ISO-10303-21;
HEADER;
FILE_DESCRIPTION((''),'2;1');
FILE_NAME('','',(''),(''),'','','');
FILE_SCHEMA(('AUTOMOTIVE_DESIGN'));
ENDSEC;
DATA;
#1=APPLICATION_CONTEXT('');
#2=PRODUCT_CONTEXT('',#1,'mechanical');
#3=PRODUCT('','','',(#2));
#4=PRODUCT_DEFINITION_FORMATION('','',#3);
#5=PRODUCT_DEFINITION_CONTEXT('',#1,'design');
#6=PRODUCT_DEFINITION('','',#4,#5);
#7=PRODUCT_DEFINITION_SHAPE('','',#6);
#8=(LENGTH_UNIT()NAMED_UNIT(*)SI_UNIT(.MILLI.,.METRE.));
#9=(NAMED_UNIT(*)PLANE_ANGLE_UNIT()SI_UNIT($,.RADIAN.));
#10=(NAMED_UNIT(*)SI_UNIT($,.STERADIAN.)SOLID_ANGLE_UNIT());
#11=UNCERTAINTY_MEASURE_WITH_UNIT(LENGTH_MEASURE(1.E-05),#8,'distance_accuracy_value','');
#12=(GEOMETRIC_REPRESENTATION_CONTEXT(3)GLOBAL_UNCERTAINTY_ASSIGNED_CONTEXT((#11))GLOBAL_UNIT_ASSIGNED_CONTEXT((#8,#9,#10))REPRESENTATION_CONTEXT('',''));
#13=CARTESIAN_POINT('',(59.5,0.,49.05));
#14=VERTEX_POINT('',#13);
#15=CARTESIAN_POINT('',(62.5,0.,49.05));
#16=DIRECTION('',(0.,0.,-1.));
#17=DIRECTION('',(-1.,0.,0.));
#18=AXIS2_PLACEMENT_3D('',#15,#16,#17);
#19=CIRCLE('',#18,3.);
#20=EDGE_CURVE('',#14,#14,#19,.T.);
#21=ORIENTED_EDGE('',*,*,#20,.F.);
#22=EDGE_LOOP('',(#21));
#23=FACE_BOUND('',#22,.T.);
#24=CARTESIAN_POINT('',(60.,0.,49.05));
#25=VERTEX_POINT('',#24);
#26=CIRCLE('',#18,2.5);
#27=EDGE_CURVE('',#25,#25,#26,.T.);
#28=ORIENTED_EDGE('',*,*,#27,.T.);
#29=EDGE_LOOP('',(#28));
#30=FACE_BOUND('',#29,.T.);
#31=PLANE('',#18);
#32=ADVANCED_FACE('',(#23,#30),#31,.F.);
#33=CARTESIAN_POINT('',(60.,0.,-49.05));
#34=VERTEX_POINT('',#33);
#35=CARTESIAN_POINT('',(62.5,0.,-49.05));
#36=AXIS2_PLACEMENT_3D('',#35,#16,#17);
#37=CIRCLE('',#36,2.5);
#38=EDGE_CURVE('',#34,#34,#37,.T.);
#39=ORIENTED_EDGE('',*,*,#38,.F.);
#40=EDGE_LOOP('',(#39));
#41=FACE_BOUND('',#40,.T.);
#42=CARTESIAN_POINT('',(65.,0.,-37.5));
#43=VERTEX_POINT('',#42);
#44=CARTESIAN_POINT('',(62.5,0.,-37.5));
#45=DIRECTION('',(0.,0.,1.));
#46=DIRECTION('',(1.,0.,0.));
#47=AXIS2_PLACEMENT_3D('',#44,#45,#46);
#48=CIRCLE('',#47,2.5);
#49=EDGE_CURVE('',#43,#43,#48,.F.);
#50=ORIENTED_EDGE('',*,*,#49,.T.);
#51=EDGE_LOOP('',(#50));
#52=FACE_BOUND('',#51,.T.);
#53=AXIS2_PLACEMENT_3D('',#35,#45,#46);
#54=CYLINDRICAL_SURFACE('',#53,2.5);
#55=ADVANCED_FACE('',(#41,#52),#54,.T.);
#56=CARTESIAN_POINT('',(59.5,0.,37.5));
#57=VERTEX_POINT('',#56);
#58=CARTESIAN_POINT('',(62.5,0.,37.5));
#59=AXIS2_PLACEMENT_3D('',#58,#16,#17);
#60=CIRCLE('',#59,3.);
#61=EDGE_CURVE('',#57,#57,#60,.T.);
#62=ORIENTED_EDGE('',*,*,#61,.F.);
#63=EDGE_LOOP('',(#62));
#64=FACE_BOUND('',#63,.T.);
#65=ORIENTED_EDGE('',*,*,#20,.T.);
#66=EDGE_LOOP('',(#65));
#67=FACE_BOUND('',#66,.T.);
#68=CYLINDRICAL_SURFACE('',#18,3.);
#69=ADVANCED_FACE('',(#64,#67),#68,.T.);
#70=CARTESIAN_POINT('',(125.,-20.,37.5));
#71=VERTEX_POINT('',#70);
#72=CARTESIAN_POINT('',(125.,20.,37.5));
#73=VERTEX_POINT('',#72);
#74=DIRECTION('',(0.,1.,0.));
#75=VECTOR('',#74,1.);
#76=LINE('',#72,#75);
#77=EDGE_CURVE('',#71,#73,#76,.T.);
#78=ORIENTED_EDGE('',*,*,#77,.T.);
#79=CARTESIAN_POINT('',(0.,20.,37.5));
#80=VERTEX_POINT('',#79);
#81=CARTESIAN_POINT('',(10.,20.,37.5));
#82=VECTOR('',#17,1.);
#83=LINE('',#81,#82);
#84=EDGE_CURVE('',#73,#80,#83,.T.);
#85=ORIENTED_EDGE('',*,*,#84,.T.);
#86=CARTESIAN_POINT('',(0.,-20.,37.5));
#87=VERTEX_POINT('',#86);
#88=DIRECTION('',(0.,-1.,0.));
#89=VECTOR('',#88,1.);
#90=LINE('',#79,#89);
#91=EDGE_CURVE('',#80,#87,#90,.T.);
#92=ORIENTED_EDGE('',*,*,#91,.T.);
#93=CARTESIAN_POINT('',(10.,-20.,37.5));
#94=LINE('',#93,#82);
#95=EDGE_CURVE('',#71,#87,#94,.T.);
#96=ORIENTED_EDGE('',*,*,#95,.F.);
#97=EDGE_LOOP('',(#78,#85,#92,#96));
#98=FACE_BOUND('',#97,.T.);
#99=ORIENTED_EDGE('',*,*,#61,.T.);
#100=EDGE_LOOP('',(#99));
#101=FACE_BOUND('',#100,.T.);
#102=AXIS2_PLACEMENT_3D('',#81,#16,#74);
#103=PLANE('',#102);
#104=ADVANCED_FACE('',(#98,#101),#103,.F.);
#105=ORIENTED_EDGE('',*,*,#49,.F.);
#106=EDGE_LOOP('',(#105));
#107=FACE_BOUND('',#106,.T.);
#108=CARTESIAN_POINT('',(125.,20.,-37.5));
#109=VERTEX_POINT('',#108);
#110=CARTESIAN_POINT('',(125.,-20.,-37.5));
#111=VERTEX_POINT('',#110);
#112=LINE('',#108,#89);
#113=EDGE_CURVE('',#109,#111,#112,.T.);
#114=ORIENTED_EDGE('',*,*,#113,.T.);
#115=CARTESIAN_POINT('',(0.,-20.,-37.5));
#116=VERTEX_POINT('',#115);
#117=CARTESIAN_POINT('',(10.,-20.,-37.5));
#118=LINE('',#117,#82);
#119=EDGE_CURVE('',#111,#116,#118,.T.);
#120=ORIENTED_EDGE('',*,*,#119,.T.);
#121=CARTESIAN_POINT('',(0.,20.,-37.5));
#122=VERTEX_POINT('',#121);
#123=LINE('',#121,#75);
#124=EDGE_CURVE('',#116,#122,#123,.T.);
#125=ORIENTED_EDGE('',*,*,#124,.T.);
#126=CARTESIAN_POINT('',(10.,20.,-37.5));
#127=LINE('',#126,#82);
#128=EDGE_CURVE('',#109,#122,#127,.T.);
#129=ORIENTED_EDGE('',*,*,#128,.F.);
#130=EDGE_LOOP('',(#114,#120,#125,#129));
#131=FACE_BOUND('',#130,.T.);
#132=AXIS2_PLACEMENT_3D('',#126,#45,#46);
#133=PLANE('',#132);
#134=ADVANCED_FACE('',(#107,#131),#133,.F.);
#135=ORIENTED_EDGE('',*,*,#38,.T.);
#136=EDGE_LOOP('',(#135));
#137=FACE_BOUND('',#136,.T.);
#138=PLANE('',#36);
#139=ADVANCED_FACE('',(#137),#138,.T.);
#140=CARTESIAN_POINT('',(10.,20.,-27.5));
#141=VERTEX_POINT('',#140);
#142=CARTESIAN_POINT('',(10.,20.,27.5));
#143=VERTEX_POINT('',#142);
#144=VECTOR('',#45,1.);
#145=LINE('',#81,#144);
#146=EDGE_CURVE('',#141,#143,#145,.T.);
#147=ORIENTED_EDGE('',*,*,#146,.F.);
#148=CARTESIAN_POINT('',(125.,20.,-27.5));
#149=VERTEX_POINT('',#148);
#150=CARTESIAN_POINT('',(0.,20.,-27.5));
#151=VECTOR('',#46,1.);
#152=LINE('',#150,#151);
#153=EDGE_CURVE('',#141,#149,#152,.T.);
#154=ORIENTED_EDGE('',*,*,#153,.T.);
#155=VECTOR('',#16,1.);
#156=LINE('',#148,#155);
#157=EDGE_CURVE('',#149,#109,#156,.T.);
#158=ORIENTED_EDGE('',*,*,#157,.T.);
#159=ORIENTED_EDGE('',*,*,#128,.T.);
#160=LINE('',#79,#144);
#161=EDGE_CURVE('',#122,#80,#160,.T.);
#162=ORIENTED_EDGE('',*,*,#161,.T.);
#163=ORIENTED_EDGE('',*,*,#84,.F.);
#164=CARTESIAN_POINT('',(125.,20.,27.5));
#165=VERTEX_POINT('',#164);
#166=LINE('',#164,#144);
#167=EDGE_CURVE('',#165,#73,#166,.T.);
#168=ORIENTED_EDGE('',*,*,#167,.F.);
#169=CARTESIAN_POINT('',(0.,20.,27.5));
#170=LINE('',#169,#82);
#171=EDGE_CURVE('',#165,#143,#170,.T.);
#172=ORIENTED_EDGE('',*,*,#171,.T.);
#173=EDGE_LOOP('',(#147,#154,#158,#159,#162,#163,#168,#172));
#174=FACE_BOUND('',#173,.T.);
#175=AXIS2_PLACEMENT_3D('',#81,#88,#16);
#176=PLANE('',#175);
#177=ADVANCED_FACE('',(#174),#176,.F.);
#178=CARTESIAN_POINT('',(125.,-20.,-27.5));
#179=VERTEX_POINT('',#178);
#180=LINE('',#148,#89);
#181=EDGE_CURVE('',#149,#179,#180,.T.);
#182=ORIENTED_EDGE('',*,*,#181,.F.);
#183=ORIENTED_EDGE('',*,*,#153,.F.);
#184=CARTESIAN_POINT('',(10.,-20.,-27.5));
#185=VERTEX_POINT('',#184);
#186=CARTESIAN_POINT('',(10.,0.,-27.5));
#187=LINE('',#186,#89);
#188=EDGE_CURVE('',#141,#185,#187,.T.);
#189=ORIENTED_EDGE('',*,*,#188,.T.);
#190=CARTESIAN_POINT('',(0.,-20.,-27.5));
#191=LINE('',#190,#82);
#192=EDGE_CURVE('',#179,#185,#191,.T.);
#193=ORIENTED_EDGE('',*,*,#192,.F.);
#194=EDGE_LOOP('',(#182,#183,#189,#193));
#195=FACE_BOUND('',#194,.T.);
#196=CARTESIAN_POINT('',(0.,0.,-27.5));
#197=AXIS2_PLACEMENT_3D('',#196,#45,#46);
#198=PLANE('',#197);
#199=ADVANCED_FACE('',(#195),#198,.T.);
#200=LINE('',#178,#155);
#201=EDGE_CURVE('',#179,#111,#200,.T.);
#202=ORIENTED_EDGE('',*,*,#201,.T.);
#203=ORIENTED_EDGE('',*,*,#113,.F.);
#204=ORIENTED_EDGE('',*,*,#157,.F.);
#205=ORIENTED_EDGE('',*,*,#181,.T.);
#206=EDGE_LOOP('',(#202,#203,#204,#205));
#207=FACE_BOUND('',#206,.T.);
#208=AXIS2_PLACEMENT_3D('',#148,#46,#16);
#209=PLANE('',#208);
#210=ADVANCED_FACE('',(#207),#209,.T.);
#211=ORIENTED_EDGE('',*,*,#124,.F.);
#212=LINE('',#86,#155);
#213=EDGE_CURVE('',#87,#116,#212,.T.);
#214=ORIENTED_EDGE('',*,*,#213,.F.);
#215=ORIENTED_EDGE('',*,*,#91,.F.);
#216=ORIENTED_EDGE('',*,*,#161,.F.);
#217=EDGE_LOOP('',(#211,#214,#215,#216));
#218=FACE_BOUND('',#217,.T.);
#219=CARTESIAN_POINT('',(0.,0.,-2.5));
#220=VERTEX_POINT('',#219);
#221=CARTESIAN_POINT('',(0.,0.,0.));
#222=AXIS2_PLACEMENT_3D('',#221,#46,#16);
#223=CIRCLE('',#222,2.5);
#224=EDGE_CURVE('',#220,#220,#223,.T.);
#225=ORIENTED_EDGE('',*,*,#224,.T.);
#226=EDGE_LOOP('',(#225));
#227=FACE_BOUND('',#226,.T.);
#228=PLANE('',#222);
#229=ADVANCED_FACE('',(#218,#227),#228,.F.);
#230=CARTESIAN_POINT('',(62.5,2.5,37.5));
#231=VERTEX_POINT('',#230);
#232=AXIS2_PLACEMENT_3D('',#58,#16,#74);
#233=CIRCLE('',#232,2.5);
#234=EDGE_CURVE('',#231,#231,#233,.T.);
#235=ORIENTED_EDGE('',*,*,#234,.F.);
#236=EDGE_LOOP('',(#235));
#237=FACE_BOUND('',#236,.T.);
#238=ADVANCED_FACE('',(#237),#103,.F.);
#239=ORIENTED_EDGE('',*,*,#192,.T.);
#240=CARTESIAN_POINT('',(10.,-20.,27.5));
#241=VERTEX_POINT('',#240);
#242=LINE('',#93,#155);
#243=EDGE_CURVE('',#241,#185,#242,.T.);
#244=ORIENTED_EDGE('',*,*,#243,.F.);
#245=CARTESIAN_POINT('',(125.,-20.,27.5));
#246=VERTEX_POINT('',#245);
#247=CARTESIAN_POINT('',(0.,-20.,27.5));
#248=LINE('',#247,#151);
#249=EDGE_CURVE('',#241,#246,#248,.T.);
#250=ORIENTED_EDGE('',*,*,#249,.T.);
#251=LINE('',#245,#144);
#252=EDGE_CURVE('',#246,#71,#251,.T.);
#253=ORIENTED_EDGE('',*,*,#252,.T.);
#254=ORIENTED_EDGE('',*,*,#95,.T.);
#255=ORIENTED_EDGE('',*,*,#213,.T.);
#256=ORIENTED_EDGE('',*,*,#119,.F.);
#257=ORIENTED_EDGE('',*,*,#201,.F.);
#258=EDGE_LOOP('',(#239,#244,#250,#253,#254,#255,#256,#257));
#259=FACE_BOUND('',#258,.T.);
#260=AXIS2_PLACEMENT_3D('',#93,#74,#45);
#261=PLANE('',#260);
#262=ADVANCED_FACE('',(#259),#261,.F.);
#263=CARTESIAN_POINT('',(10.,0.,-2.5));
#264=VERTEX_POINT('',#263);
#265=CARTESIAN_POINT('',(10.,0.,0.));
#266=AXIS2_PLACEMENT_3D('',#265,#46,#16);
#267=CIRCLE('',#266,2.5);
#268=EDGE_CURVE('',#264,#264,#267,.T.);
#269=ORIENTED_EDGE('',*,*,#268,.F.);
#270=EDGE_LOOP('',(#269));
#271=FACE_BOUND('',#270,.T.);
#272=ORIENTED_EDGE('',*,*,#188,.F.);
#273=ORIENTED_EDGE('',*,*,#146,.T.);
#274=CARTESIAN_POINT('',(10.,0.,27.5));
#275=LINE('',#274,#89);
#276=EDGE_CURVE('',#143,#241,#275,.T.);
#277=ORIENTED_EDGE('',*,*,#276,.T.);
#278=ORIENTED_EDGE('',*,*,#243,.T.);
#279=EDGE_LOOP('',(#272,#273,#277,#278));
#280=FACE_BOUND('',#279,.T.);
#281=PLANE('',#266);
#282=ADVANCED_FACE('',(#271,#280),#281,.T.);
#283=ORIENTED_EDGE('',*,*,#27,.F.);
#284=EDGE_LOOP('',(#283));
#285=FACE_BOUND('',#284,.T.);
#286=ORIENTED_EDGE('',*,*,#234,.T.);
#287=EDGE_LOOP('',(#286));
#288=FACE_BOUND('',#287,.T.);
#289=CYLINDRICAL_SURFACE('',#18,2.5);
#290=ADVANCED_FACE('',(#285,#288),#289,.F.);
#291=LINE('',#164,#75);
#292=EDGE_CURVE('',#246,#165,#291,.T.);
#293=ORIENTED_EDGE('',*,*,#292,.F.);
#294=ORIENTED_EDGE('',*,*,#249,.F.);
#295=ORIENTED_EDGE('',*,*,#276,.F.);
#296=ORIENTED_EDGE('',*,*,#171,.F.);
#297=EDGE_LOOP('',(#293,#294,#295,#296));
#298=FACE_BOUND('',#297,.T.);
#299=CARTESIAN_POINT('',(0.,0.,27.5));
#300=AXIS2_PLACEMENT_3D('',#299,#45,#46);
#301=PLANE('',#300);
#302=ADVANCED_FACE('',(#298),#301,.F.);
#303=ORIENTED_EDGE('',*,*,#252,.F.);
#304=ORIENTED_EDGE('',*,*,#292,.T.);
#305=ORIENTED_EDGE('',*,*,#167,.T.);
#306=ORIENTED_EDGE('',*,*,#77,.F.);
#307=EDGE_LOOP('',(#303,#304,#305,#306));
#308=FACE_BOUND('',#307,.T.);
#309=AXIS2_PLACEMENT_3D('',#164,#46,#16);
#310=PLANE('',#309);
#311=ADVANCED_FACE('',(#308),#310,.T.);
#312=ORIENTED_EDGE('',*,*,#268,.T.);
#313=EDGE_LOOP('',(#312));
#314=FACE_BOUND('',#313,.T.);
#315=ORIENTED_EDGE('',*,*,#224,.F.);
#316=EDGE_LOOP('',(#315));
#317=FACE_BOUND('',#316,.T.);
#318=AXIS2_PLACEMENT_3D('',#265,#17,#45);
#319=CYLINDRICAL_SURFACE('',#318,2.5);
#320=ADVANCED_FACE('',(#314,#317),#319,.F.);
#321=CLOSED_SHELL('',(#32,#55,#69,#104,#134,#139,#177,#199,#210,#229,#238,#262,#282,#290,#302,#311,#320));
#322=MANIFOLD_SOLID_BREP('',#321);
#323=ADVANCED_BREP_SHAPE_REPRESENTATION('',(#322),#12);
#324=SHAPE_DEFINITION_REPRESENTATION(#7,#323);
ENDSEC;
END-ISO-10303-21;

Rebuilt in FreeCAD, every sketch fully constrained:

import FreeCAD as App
import Part
import Sketcher

V = App.Vector
Q = App.Units.Quantity


def add_polygon(sketch, points):
    """Adds a closed chain of lines whose ends are joined by coincident constraints."""
    first, n = sketch.GeometryCount, len(points)
    for a, b in zip(points, points[1:] + points[:1]):
        sketch.addGeometry(Part.LineSegment(App.Vector(*a, 0), App.Vector(*b, 0)), False)
    for i in range(n):
        sketch.addConstraint(Sketcher.Constraint("Coincident", first + i, 2, first + (i + 1) % n, 1))

doc = App.newDocument("Part")
body = doc.addObject("PartDesign::Body", "Body")

# Sketch on YZ plane
sketch1 = body.newObject("Sketcher::SketchObject", "Sketch")
sketch1.AttachmentSupport = (doc.getObject("YZ_Plane"), [""])
sketch1.MapMode = "FlatFace"
add_polygon(sketch1, [(20, 37.5), (-20, 37.5), (-20, -37.5), (20, -37.5)])  # lines 0-3
sketch1.addGeometry(Part.Circle(V(0, 0, 0), V(0, 0, 1), 2.5), False)  # 4
sketch1.addConstraint([
    Sketcher.Constraint("Horizontal", 0),
    Sketcher.Constraint("Vertical", 1),
    Sketcher.Constraint("Horizontal", 2),
    Sketcher.Constraint("Vertical", 3),
    Sketcher.Constraint("Coincident", 4, 3, -1, 1),
    Sketcher.Constraint("Symmetric", 0, 2, 2, 2, -1, 1),
    Sketcher.Constraint("Diameter", 4, Q("5 mm")),
    Sketcher.Constraint("DistanceX", 0, 2, 0, 1, Q("40 mm")),
    Sketcher.Constraint("DistanceY", 1, 2, 1, 1, Q("75 mm")),
])
pad1 = body.newObject("PartDesign::Pad", "Pad")
pad1.Profile = sketch1
pad1.Length = 10

# Sketch on XY plane
sketch2 = body.newObject("Sketcher::SketchObject", "Sketch001")
sketch2.AttachmentSupport = (doc.getObject("XY_Plane"), [""])
sketch2.MapMode = "FlatFace"
sketch2.AttachmentOffset = App.Placement(V(0, 0, -37.5), App.Rotation())
add_polygon(sketch2, [(125, 20), (125, -20), (0, -20), (0, 20)])  # lines 0-3
sketch2.addConstraint([
    Sketcher.Constraint("Vertical", 0),
    Sketcher.Constraint("Horizontal", 1),
    Sketcher.Constraint("Vertical", 2),
    Sketcher.Constraint("Horizontal", 3),
    Sketcher.Constraint("Symmetric", 1, 2, 2, 2, -1, 1),
    Sketcher.Constraint("DistanceX", 1, 2, 1, 1, Q("125 mm")),
    Sketcher.Constraint("DistanceY", 0, 2, 0, 1, Q("40 mm")),
])
pad2 = body.newObject("PartDesign::Pad", "Pad001")
pad2.Profile = sketch2
pad2.Length = 10

# Sketch on XY plane
sketch3 = body.newObject("Sketcher::SketchObject", "Sketch002")
sketch3.AttachmentSupport = (doc.getObject("XY_Plane"), [""])
sketch3.MapMode = "FlatFace"
sketch3.AttachmentOffset = App.Placement(V(0, 0, 37.5), App.Rotation())
add_polygon(sketch3, [(0, 20), (0, -20), (125, -20), (125, 20)])  # lines 0-3
sketch3.addConstraint([
    Sketcher.Constraint("Vertical", 0),
    Sketcher.Constraint("Horizontal", 1),
    Sketcher.Constraint("Vertical", 2),
    Sketcher.Constraint("Horizontal", 3),
    Sketcher.Constraint("Symmetric", 0, 2, 3, 2, -1, 1),
    Sketcher.Constraint("DistanceX", 1, 1, 1, 2, Q("125 mm")),
    Sketcher.Constraint("DistanceY", 0, 2, 0, 1, Q("40 mm")),
])
pad3 = body.newObject("PartDesign::Pad", "Pad002")
pad3.Profile = sketch3
pad3.Length = 10
pad3.Reversed = True

# Sketch on XY plane
sketch4 = body.newObject("Sketcher::SketchObject", "Sketch003")
sketch4.AttachmentSupport = (doc.getObject("XY_Plane"), [""])
sketch4.MapMode = "FlatFace"
sketch4.AttachmentOffset = App.Placement(V(0, 0, -37.5), App.Rotation())
sketch4.addGeometry(Part.Circle(V(62.5, 0, 0), V(0, 0, 1), 2.5), False)
sketch4.addConstraint([
    Sketcher.Constraint("PointOnObject", 0, 3, -1),
    Sketcher.Constraint("Diameter", 0, Q("5 mm")),
    Sketcher.Constraint("DistanceX", -1, 1, 0, 3, Q("62.5 mm")),
])
pad4 = body.newObject("PartDesign::Pad", "Pad003")
pad4.Profile = sketch4
pad4.Length = 11.55
pad4.Reversed = True

# Sketch on XY plane
sketch5 = body.newObject("Sketcher::SketchObject", "Sketch004")
sketch5.AttachmentSupport = (doc.getObject("XY_Plane"), [""])
sketch5.MapMode = "FlatFace"
sketch5.AttachmentOffset = App.Placement(V(0, 0, 37.5), App.Rotation())
sketch5.addGeometry([
    Part.Circle(V(62.5, 0, 0), V(0, 0, 1), 3),
    Part.Circle(V(62.5, 0, 0), V(0, 0, 1), 2.5),
], False)
sketch5.addConstraint([
    Sketcher.Constraint("Coincident", 1, 3, 0, 3),
    Sketcher.Constraint("PointOnObject", 0, 3, -1),
    Sketcher.Constraint("Diameter", 0, Q("6 mm")),
    Sketcher.Constraint("Diameter", 1, Q("5 mm")),
    Sketcher.Constraint("DistanceX", -1, 1, 0, 3, Q("62.5 mm")),
])
pad5 = body.newObject("PartDesign::Pad", "Pad004")
pad5.Profile = sketch5
pad5.Length = 11.55

doc.recompute()
